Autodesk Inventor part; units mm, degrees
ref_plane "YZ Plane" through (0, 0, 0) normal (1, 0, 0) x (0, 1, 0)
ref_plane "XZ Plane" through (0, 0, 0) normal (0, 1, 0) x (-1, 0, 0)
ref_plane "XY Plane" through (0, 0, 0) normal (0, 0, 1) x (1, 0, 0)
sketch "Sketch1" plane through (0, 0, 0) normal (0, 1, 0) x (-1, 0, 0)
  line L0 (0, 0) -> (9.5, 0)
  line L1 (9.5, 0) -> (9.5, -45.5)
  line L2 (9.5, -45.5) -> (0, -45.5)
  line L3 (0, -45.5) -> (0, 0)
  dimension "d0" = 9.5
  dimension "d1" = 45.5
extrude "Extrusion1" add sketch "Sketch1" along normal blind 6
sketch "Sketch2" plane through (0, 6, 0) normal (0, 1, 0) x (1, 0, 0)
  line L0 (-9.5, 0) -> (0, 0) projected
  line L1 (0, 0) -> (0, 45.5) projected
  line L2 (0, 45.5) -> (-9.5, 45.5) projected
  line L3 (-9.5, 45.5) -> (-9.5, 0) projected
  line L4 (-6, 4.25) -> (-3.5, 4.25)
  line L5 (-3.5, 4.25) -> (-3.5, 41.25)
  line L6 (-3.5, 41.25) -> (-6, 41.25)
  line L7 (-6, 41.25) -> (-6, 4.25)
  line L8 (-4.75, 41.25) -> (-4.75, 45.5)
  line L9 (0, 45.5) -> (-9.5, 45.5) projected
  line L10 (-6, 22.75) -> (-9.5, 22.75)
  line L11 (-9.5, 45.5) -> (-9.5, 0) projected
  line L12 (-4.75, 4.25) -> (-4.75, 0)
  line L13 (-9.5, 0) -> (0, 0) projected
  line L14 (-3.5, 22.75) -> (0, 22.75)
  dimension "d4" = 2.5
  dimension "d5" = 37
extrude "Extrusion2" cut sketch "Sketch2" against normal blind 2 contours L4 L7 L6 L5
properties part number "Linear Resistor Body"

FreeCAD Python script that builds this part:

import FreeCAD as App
import Part
import Sketcher
from FreeCAD import Vector

doc = App.newDocument("Part")
body = doc.addObject("PartDesign::Body", "Body")

sketch1 = body.newObject("Sketcher::SketchObject", "Sketch")
sketch1.AttachmentSupport = (doc.getObject("XZ_Plane"), [""])
sketch1.MapMode = "FlatFace"
sketch1.addGeometry([
    Part.LineSegment(Vector(-9.5, 0, 0), Vector(0, 0, 0)),
    Part.LineSegment(Vector(0, 0, 0), Vector(0, -45.5, 0)),
    Part.LineSegment(Vector(0, -45.5, 0), Vector(-9.5, -45.5, 0)),
    Part.LineSegment(Vector(-9.5, -45.5, 0), Vector(-9.5, 0, 0)),
], False)
sketch1.addConstraint([
    Sketcher.Constraint("Coincident", 0, 2, 1, 1),
    Sketcher.Constraint("Coincident", 1, 2, 2, 1),
    Sketcher.Constraint("Coincident", 2, 2, 3, 1),
    Sketcher.Constraint("Coincident", 3, 2, 0, 1),
    Sketcher.Constraint("Horizontal", 0),
    Sketcher.Constraint("Vertical", 1),
    Sketcher.Constraint("Horizontal", 2),
    Sketcher.Constraint("Vertical", 3),
    Sketcher.Constraint("Coincident", 0, 2, -1, 1),
    Sketcher.Constraint("DistanceX", 0, 1, 0, 2, 9.5),
    Sketcher.Constraint("DistanceY", 1, 2, 1, 1, 45.5),
])
pad1 = body.newObject("PartDesign::Pad", "Pad")
pad1.Profile = sketch1
pad1.Length = 6
pad1.Reversed = True

sketch2 = body.newObject("Sketcher::SketchObject", "Sketch001")
sketch2.AttachmentSupport = (doc.getObject("XZ_Plane"), [""])
sketch2.MapMode = "FlatFace"
sketch2.AttachmentOffset = App.Placement(Vector(0, 0, -6), App.Rotation())
sketch2.addGeometry([
    Part.LineSegment(Vector(-6, -4.25, 0), Vector(-3.5, -4.25, 0)),
    Part.LineSegment(Vector(-3.5, -4.25, 0), Vector(-3.5, -41.25, 0)),
    Part.LineSegment(Vector(-3.5, -41.25, 0), Vector(-6, -41.25, 0)),
    Part.LineSegment(Vector(-6, -41.25, 0), Vector(-6, -4.25, 0)),
], False)
sketch2.addConstraint([
    Sketcher.Constraint("Coincident", 0, 2, 1, 1),
    Sketcher.Constraint("Coincident", 1, 2, 2, 1),
    Sketcher.Constraint("Coincident", 2, 2, 3, 1),
    Sketcher.Constraint("Coincident", 3, 2, 0, 1),
    Sketcher.Constraint("Horizontal", 0),
    Sketcher.Constraint("Vertical", 1),
    Sketcher.Constraint("Horizontal", 2),
    Sketcher.Constraint("Vertical", 3),
    Sketcher.Constraint("DistanceY", 1, 2, 1, 1, 37.0),
    Sketcher.Constraint("DistanceX", 0, 1, 0, 2, 2.5),
    Sketcher.Constraint("DistanceX", 2, 2, -1, 1, 6.0),
    Sketcher.Constraint("DistanceY", 0, 2, -1, 1, 4.25),
])
pocket1 = body.newObject("PartDesign::Pocket", "Pocket")
pocket1.Profile = sketch2
pocket1.Length = 2
pocket1.Reversed = True

doc.recompute()
